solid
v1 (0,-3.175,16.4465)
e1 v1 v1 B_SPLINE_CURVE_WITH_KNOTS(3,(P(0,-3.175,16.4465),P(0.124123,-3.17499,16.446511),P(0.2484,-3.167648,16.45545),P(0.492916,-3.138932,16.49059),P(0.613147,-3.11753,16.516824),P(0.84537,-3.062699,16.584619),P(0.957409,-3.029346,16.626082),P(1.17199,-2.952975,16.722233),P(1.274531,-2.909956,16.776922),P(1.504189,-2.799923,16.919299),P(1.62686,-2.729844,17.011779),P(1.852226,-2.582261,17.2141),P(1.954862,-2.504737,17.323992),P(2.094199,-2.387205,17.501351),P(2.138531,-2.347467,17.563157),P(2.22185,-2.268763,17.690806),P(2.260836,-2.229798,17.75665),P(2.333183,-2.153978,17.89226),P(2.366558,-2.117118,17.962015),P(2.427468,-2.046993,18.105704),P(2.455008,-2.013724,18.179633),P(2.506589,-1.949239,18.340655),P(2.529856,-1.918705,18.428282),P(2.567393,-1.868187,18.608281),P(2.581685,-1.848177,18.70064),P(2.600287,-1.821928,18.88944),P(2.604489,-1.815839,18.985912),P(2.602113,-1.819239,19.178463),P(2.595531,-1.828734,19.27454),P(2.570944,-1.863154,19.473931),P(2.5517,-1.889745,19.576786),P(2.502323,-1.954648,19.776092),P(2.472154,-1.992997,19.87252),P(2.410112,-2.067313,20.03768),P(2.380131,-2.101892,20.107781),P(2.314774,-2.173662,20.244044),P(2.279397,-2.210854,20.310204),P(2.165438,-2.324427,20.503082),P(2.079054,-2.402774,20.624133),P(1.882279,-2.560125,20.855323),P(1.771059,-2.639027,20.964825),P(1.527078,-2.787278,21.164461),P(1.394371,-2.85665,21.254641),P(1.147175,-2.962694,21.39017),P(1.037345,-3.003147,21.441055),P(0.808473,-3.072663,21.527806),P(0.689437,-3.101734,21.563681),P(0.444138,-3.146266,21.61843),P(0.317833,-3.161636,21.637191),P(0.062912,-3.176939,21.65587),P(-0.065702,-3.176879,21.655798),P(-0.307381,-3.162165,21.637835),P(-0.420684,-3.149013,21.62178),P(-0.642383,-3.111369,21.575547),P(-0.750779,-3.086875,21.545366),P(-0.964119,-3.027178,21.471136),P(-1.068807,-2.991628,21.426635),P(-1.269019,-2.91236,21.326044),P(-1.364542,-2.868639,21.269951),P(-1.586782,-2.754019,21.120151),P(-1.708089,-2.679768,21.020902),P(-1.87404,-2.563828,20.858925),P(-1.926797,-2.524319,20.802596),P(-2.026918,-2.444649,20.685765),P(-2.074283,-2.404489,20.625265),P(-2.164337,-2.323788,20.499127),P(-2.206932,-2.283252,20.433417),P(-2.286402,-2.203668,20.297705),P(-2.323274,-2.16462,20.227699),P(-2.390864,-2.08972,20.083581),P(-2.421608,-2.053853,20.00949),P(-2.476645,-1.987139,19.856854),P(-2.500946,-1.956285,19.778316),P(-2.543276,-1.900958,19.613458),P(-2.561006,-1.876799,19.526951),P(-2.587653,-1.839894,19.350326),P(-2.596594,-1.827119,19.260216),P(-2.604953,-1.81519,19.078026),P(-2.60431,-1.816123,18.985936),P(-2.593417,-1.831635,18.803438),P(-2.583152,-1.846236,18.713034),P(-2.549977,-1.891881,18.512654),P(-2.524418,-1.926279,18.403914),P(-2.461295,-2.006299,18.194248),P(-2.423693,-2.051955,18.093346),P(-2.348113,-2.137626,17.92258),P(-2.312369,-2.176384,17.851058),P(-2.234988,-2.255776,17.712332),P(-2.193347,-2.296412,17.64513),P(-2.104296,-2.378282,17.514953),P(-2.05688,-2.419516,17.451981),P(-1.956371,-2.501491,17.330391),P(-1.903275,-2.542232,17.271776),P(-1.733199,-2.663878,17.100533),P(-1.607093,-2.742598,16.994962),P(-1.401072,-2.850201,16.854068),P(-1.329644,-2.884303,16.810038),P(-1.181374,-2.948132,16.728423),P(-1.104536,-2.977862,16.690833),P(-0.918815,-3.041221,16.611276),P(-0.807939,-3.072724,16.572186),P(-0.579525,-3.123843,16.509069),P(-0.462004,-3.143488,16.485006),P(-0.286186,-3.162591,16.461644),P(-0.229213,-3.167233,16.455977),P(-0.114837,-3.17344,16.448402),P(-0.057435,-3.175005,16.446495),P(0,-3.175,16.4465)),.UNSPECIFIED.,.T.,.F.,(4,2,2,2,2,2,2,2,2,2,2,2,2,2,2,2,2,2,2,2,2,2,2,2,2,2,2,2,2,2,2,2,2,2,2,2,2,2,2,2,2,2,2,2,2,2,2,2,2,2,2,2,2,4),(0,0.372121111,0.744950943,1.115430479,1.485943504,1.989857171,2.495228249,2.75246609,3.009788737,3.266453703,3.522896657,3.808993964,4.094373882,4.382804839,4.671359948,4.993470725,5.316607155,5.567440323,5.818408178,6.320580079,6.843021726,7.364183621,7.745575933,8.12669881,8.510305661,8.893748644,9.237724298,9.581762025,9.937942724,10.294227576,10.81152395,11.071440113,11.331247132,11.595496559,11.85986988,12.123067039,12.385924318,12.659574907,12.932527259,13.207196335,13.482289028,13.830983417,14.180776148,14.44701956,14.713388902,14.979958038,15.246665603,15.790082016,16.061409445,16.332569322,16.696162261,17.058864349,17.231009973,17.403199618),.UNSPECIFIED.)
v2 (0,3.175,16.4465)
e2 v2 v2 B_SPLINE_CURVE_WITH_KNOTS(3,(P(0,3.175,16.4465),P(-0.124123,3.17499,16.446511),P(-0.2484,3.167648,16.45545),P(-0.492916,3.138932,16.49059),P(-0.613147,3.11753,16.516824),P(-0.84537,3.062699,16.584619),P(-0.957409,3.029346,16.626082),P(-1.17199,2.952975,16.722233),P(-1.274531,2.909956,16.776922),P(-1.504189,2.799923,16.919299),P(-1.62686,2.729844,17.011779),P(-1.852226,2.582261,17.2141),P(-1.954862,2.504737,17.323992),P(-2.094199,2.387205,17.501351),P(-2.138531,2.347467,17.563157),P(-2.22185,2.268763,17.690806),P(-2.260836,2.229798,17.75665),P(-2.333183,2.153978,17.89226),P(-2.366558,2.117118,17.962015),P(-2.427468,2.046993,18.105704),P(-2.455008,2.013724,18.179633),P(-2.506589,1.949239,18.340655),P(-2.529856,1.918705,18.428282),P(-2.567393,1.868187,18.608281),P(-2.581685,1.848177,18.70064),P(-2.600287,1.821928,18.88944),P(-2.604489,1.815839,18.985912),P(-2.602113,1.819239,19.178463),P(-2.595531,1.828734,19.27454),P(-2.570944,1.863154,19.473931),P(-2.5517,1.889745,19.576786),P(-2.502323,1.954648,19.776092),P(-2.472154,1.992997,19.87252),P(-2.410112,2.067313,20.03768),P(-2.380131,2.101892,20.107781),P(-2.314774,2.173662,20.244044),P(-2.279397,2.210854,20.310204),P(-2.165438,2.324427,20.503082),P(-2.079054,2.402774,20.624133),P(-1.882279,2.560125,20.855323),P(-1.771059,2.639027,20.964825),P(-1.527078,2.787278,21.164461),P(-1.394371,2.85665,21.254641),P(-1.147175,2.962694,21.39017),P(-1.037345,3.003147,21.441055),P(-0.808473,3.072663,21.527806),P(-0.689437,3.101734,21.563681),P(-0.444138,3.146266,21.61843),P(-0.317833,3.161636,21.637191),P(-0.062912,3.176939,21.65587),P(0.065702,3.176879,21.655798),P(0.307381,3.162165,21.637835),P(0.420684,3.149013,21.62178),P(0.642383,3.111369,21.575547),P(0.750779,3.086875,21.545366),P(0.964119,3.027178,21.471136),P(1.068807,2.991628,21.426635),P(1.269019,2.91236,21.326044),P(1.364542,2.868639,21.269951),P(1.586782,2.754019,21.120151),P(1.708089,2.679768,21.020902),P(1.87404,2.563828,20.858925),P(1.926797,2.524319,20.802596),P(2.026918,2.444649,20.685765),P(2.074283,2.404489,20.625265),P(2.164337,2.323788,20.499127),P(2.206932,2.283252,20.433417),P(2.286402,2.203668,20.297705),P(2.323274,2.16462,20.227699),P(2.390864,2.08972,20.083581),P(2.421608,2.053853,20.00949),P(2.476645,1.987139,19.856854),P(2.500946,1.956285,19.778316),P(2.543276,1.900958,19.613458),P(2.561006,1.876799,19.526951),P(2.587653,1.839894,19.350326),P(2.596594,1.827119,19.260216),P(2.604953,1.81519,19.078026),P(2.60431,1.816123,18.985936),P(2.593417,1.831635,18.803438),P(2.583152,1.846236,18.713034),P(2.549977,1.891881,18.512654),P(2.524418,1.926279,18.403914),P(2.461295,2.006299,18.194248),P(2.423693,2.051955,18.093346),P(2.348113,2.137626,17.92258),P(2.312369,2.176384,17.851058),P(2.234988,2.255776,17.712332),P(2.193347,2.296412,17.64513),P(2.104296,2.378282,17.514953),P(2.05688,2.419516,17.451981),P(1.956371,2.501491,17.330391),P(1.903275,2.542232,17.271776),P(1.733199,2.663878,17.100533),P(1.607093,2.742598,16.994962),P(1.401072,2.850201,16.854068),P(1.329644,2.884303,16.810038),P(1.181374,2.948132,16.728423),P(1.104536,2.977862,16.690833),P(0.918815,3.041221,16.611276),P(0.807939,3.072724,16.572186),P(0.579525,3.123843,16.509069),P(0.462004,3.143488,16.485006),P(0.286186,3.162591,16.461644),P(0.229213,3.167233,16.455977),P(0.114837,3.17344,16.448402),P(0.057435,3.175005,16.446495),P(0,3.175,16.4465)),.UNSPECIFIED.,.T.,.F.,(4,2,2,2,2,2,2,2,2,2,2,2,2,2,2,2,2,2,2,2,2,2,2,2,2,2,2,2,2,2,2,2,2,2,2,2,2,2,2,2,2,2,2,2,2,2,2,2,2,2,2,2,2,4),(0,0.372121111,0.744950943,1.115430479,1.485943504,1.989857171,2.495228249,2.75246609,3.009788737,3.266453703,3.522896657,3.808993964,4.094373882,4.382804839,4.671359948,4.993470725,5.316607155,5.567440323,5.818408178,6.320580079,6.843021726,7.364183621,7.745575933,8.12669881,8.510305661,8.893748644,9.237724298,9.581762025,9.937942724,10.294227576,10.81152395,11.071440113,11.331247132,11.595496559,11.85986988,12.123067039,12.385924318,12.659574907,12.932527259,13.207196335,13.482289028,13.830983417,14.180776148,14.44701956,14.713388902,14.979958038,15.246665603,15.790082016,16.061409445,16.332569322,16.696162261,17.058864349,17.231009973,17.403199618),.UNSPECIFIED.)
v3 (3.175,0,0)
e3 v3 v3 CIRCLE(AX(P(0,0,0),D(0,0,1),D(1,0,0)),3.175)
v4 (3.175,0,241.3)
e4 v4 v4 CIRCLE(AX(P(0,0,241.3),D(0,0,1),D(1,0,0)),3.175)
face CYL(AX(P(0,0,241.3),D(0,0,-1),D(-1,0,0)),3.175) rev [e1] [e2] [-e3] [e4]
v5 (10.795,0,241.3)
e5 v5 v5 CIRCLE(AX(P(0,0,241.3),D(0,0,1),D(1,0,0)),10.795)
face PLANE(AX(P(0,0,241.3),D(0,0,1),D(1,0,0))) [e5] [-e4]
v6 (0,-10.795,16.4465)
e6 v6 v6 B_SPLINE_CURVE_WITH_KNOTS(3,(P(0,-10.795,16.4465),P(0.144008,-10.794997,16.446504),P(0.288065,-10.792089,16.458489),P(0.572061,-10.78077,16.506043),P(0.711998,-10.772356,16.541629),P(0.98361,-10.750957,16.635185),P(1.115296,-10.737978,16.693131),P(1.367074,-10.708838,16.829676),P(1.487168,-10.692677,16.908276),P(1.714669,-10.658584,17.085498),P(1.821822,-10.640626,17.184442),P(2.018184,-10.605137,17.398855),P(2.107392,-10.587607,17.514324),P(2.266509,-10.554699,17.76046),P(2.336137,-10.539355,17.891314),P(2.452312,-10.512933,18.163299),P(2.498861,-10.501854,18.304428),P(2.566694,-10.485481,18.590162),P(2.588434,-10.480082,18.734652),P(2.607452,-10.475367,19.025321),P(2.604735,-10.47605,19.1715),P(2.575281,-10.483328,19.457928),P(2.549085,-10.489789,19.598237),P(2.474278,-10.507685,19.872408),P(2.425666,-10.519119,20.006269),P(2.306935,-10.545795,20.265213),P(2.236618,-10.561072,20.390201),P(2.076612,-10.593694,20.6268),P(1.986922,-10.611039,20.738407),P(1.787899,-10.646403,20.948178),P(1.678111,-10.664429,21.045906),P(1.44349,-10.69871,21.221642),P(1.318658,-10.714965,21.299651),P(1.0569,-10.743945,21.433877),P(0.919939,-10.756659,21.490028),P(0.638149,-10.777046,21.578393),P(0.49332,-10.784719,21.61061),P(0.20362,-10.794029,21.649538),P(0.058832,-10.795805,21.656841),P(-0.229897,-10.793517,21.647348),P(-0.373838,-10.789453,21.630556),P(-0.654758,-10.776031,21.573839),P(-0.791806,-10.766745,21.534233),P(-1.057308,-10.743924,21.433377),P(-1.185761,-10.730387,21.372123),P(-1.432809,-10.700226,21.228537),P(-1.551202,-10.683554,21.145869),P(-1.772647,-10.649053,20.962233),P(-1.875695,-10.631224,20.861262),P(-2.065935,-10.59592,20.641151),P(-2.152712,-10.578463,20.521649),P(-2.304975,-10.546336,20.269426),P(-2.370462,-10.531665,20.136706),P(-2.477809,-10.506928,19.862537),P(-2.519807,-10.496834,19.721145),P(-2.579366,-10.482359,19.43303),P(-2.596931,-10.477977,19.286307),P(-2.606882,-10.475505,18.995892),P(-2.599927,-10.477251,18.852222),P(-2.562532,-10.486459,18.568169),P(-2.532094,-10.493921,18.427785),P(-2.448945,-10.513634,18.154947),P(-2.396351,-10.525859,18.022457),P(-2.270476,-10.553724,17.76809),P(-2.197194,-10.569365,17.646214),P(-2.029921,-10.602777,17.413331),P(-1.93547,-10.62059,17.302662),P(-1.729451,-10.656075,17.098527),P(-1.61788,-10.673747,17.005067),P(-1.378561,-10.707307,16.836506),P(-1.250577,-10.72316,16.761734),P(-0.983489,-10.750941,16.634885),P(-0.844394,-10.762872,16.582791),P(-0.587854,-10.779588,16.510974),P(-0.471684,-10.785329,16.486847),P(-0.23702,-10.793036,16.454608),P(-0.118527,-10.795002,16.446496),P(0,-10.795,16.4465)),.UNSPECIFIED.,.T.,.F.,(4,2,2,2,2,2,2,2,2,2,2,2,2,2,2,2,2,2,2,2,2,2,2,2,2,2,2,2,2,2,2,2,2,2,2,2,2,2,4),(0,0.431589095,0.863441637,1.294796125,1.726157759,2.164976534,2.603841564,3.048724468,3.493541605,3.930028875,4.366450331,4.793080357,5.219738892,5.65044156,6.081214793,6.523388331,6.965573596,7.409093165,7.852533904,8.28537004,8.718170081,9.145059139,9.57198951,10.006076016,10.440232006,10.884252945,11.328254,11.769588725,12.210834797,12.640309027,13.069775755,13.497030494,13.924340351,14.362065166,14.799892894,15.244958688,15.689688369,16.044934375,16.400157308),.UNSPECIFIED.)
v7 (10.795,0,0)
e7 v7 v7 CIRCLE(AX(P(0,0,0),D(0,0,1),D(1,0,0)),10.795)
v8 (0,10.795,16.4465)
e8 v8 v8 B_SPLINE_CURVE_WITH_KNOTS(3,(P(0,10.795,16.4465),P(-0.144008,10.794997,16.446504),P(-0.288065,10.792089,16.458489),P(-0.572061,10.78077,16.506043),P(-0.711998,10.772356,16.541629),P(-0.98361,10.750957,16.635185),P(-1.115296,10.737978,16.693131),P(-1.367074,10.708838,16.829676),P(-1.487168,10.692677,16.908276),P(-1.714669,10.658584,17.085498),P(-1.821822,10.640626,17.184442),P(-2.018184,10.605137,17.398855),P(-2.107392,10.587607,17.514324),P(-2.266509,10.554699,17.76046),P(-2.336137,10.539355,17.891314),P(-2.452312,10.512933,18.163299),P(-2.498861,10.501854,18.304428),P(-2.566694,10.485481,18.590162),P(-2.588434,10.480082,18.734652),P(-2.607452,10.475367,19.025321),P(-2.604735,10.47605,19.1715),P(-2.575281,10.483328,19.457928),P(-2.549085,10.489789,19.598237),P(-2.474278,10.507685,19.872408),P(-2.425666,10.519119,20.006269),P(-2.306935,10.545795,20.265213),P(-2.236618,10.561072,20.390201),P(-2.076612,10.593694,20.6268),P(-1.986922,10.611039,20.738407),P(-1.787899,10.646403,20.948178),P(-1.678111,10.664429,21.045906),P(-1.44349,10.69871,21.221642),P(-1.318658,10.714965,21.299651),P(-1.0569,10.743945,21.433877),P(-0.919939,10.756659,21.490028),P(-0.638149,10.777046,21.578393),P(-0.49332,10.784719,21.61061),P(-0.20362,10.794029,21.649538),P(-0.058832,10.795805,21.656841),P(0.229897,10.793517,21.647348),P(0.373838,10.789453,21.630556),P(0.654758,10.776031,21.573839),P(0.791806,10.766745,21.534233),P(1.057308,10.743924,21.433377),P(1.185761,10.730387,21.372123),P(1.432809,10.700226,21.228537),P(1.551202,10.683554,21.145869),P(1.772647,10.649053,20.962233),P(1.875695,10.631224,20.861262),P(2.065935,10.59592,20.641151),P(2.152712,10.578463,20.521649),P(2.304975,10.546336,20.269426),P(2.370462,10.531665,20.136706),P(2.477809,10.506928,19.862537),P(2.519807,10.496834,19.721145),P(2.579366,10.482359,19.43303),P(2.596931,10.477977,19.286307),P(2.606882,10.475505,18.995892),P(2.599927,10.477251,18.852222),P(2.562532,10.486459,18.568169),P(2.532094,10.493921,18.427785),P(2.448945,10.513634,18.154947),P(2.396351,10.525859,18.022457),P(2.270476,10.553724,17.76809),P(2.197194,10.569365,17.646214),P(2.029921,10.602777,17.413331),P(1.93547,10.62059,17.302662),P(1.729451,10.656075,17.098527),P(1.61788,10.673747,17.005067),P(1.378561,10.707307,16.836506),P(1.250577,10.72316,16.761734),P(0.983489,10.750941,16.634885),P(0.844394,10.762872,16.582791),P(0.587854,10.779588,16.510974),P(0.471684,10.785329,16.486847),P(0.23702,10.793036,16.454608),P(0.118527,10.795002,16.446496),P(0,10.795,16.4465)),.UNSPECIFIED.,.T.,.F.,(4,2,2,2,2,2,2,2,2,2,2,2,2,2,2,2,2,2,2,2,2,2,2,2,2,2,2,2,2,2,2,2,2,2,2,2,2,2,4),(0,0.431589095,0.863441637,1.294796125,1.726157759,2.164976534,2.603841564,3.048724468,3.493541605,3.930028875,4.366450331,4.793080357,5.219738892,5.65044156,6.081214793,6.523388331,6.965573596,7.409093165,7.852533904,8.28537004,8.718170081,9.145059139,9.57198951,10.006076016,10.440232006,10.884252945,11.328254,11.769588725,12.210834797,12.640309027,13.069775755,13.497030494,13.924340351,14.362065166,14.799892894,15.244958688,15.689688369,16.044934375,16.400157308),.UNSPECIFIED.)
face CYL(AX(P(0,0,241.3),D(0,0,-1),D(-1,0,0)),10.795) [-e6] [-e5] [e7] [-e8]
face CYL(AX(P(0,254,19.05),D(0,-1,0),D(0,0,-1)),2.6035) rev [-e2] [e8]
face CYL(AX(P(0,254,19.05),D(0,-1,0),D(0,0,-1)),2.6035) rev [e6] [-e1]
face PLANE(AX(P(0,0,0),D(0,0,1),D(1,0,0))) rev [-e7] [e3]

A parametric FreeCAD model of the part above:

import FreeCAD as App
import Part
import Sketcher
from FreeCAD import Vector
Q = App.Units.Quantity

doc = App.newDocument("Part")
params = doc.addObject("Spreadsheet::Sheet", "Params")
for row, (alias, value) in enumerate([
    ("sketch1_diameter", "0.85 in"),
    ("sketch1_diameter2", "0.25 in"),
    ("pad1_length", "9.5 in"),
    ("sketch2_diameter", "0.205 in"),
], start=1):
    params.set(f"A{row}", alias)
    params.set(f"B{row}", "=" + value)
    params.setAlias(f"B{row}", alias)

body = doc.addObject("PartDesign::Body", "Body")

sketch1 = doc.addObject("Sketcher::SketchObject", "Sketch")
body.addObject(sketch1)
sketch1.AttachmentSupport = (doc.XY_Plane, [""])
sketch1.MapMode = "FlatFace"
sketch1.addGeometry(Part.Circle(Vector(0, 0, 0), Vector(0, 0, 1), 10.8), False)
sketch1.addGeometry(Part.Circle(Vector(0, 0, 0), Vector(0, 0, 1), 3.2), False)
sketch1.addConstraint(Sketcher.Constraint("Coincident", 0, 3, -1, 1))
sketch1.addConstraint(Sketcher.Constraint("Coincident", 1, 3, -1, 1))
sketch1.addConstraint(Sketcher.Constraint("Diameter", 0, Q("0.85 in")))
sketch1.addConstraint(Sketcher.Constraint("Diameter", 1, Q("0.25 in")))
sketch1.setExpression("Constraints[2]", "Params.sketch1_diameter")
sketch1.setExpression("Constraints[3]", "Params.sketch1_diameter2")
pad1 = doc.addObject("PartDesign::Pad", "Pad")
body.addObject(pad1)
pad1.Profile = sketch1
pad1.setExpression("Length", "Params.pad1_length")

sketch2 = doc.addObject("Sketcher::SketchObject", "Sketch001")
body.addObject(sketch2)
sketch2.AttachmentSupport = (doc.XZ_Plane, [""])
sketch2.MapMode = "FlatFace"
sketch2.addGeometry(Part.Circle(Vector(0, 19.1, 0), Vector(0, 0, 1), 2.6), False)
sketch2.addConstraint(Sketcher.Constraint("PointOnObject", 0, 3, -2))
sketch2.addConstraint(Sketcher.Constraint("Diameter", 0, Q("0.205 in")))
sketch2.addConstraint(Sketcher.Constraint("DistanceY", -1, 1, 0, 3, Q("0.75 in")))
sketch2.setExpression("Constraints[1]", "Params.sketch2_diameter")
pocket1 = doc.addObject("PartDesign::Pocket", "Pocket")
body.addObject(pocket1)
pocket1.Profile = sketch2
pocket1.Type = "ThroughAll"
pocket1.Midplane = True

doc.recompute()
